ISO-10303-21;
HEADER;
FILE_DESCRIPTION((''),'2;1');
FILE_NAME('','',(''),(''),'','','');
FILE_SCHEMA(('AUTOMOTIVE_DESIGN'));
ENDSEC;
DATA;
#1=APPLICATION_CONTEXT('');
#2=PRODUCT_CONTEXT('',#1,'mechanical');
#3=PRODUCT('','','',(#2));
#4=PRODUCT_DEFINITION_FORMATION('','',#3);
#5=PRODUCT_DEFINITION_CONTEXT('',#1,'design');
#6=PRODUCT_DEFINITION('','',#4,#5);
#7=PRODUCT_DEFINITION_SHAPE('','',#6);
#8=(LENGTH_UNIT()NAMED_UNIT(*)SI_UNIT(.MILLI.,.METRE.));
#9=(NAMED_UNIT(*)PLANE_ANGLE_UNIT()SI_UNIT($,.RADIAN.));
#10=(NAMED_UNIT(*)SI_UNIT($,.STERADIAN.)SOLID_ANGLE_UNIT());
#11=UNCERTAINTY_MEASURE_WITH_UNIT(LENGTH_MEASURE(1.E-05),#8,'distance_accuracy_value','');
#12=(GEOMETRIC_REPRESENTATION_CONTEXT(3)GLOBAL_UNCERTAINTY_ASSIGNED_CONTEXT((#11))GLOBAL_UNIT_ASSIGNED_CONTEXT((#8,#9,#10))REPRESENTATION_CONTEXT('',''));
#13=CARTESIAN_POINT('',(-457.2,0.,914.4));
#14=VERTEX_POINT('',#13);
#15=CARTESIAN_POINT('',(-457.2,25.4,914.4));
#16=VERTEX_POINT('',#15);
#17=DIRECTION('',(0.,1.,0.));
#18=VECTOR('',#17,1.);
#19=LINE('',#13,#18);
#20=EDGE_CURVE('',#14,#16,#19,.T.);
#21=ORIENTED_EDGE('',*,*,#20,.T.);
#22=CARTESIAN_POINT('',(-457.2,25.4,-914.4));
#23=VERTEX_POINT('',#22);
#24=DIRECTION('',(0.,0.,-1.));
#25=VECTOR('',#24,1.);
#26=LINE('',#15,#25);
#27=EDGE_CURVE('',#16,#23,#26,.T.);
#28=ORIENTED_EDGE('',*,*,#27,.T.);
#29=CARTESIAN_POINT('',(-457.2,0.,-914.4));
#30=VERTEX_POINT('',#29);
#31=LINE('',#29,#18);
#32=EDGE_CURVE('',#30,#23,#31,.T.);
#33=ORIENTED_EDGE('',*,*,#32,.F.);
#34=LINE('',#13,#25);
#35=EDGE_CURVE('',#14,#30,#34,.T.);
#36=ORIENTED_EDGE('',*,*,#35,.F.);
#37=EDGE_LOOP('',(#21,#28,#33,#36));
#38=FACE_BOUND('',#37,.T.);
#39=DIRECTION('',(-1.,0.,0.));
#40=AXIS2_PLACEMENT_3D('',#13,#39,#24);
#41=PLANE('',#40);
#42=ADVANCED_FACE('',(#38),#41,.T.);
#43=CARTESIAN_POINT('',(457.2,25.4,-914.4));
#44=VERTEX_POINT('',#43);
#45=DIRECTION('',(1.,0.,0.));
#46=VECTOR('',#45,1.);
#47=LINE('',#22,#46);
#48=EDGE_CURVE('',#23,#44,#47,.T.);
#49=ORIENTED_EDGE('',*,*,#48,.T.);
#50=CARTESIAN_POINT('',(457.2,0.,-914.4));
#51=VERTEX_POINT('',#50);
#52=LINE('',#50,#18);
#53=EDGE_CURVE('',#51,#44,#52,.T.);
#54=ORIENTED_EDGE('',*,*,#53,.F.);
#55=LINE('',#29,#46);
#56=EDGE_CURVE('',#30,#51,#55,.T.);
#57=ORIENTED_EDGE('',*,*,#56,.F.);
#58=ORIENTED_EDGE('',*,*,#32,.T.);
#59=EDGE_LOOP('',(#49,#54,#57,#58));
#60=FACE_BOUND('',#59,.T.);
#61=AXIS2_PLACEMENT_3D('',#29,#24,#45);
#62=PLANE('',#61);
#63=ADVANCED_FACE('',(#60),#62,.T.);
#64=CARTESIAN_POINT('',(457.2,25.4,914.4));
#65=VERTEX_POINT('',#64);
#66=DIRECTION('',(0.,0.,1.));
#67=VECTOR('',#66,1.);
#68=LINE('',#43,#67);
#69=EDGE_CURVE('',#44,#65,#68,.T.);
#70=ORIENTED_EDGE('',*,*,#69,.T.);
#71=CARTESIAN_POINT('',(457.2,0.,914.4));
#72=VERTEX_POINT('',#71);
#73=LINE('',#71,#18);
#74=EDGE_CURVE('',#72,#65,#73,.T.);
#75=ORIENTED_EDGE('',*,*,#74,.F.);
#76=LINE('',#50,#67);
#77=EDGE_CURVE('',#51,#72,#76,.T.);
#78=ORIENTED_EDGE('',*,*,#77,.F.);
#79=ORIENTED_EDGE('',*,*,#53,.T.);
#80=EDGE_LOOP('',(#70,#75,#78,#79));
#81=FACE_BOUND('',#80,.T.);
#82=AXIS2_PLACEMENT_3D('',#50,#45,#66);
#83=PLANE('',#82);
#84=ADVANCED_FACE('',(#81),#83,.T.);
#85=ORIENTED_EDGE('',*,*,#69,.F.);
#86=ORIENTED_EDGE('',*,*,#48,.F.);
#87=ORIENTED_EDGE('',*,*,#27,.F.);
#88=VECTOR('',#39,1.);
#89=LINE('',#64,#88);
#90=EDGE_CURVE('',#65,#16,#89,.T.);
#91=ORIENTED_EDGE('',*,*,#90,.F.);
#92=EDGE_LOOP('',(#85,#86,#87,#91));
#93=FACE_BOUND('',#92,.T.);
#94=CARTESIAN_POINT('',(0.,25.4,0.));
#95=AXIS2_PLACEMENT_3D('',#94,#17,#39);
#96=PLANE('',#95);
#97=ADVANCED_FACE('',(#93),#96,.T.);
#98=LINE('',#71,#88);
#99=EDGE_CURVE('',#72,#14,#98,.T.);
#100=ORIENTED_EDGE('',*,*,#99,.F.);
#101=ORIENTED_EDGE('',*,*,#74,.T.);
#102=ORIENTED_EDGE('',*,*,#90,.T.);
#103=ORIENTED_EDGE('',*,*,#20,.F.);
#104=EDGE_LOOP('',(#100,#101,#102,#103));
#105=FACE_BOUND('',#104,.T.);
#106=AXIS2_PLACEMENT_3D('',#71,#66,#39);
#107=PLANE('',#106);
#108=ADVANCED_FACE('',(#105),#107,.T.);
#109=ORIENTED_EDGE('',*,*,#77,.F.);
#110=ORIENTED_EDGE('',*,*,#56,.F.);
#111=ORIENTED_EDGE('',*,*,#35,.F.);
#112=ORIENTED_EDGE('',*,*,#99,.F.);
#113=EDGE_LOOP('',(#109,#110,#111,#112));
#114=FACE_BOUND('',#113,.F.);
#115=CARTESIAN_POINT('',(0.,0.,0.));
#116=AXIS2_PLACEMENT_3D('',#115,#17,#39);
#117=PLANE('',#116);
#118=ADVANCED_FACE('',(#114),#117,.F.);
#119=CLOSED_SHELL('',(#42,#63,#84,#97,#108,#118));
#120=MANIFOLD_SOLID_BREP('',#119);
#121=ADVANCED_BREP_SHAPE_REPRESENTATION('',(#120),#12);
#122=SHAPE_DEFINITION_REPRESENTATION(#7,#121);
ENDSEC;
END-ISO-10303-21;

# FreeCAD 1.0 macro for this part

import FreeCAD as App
import Part
import Sketcher
Q = App.Units.Quantity


def add_polygon(sketch, points):
    """Adds a closed chain of lines whose ends are joined by coincident constraints."""
    first, n = sketch.GeometryCount, len(points)
    for a, b in zip(points, points[1:] + points[:1]):
        sketch.addGeometry(Part.LineSegment(App.Vector(*a, 0), App.Vector(*b, 0)), False)
    for i in range(n):
        sketch.addConstraint(Sketcher.Constraint("Coincident", first + i, 2, first + (i + 1) % n, 1))

doc = App.newDocument("Part")
body = doc.addObject("PartDesign::Body", "Body")

sketch1 = body.newObject("Sketcher::SketchObject", "Sketch")
sketch1.AttachmentSupport = (doc.getObject("XZ_Plane"), [""])
sketch1.MapMode = "FlatFace"
add_polygon(sketch1, [(-457.2, 914.4), (457.2, 914.4), (457.2, -914.4), (-457.2, -914.4)])
sketch1.addConstraint(Sketcher.Constraint("Horizontal", 0))
sketch1.addConstraint(Sketcher.Constraint("Vertical", 1))
sketch1.addConstraint(Sketcher.Constraint("Horizontal", 2))
sketch1.addConstraint(Sketcher.Constraint("Vertical", 3))
sketch1.addConstraint(Sketcher.Constraint("Symmetric", 0, 2, 2, 2, -1, 1))
sketch1.addConstraint(Sketcher.Constraint("DistanceX", 0, 1, 0, 2, Q("36 in")))
sketch1.addConstraint(Sketcher.Constraint("DistanceY", 1, 2, 1, 1, Q("72 in")))
pad1 = body.newObject("PartDesign::Pad", "Pad")
pad1.Profile = sketch1
pad1.Length = Q("1 in")
pad1.Reversed = True

doc.recompute()
